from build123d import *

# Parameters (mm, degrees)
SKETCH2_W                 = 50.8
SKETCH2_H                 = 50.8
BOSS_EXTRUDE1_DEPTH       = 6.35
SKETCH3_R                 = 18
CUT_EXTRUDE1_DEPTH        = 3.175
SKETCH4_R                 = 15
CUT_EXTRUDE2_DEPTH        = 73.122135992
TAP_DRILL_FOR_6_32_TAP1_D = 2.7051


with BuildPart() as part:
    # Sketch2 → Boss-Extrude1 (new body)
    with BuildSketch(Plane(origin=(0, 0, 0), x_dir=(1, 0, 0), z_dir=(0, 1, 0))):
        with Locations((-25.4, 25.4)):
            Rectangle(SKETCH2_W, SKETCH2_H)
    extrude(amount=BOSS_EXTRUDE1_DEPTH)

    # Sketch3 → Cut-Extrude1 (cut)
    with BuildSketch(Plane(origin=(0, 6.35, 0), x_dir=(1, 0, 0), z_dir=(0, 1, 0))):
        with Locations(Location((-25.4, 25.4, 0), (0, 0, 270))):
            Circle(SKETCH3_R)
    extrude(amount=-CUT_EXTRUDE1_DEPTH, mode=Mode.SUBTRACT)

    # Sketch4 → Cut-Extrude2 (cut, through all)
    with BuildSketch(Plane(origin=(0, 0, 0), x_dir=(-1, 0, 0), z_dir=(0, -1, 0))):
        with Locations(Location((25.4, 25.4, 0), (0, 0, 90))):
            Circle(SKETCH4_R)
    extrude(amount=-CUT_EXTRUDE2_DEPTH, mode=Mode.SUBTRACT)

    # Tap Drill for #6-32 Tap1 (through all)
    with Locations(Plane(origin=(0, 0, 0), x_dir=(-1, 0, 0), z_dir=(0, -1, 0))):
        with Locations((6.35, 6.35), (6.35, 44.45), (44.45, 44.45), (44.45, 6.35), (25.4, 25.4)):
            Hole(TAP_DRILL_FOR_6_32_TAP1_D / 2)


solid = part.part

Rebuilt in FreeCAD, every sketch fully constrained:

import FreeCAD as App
import Part
import Sketcher
Q = App.Units.Quantity


def add_polygon(sketch, points):
    """Adds a closed chain of lines whose ends are joined by coincident constraints."""
    first, n = sketch.GeometryCount, len(points)
    for a, b in zip(points, points[1:] + points[:1]):
        sketch.addGeometry(Part.LineSegment(App.Vector(*a, 0), App.Vector(*b, 0)), False)
    for i in range(n):
        sketch.addConstraint(Sketcher.Constraint("Coincident", first + i, 2, first + (i + 1) % n, 1))

doc = App.newDocument("Part")
body = doc.addObject("PartDesign::Body", "Body")

# Sketch on XZ plane
sketch1 = doc.addObject("Sketcher::SketchObject", "Sketch")
body.addObject(sketch1)
sketch1.AttachmentSupport = (doc.XZ_Plane, [""])
sketch1.MapMode = "FlatFace"
add_polygon(sketch1, [(-51, -51), (-51, 0), (0, 0), (0, -51)])  # lines 0-3
sketch1.addConstraint([
    Sketcher.Constraint("Vertical", 0),
    Sketcher.Constraint("Horizontal", 1),
    Sketcher.Constraint("Vertical", 2),
    Sketcher.Constraint("Horizontal", 3),
    Sketcher.Constraint("Coincident", 1, 2, -1, 1),
    Sketcher.Constraint("Equal", 3, 0),
    Sketcher.Constraint("DistanceX", 1, 1, 1, 2, Q("2 in")),
])
pad1 = doc.addObject("PartDesign::Pad", "Pad")
body.addObject(pad1)
pad1.Profile = sketch1
pad1.Length = Q("0.25 in")
pad1.Reversed = True

# Sketch on XZ plane
sketch2 = doc.addObject("Sketcher::SketchObject", "Sketch001")
body.addObject(sketch2)
sketch2.AttachmentSupport = (doc.XZ_Plane, [""])
sketch2.MapMode = "FlatFace"
sketch2.AttachmentOffset = App.Placement(App.Vector(0, 0, -0.25 * 25.4), App.Rotation())
sketch2.addGeometry(Part.Circle(App.Vector(-25, -25, 0), App.Vector(0, 0, 1), 18), False)
sketch2.addConstraint([
    Sketcher.Constraint("DistanceX", 0, 3, -1, 1, Q("1 in")),
    Sketcher.Constraint("DistanceY", 0, 3, -1, 1, Q("1 in")),
    Sketcher.Constraint("Diameter", 0, 36.0),
])
pocket1 = doc.addObject("PartDesign::Pocket", "Pocket")
body.addObject(pocket1)
pocket1.Profile = sketch2
pocket1.Length = Q("0.125 in")
pocket1.Reversed = True

# Sketch on XZ plane
sketch3 = doc.addObject("Sketcher::SketchObject", "Sketch002")
body.addObject(sketch3)
sketch3.AttachmentSupport = (doc.XZ_Plane, [""])
sketch3.MapMode = "FlatFace"
sketch3.addGeometry(Part.Circle(App.Vector(-25, -25, 0), App.Vector(0, 0, 1), 15), False)
sketch3.addConstraint([
    Sketcher.Constraint("DistanceX", 0, 3, -1, 1, Q("1 in")),
    Sketcher.Constraint("DistanceY", 0, 3, -1, 1, Q("1 in")),
    Sketcher.Constraint("Diameter", 0, 30.0),
])
pocket2 = doc.addObject("PartDesign::Pocket", "Pocket001")
body.addObject(pocket2)
pocket2.Profile = sketch3
pocket2.Type = "ThroughAll"

# Sketch on XZ plane
sketch4 = doc.addObject("Sketcher::SketchObject", "Sketch003")
body.addObject(sketch4)
sketch4.AttachmentSupport = (doc.XZ_Plane, [""])
sketch4.MapMode = "FlatFace"
sketch4.addGeometry([
    Part.Circle(App.Vector(-6.3, -6.3, 0), App.Vector(0, 0, 1), 1.4),  # 0
    Part.Circle(App.Vector(-6.3, -44.5, 0), App.Vector(0, 0, 1), 1.4),  # 1
    Part.Circle(App.Vector(-44.5, -44.5, 0), App.Vector(0, 0, 1), 1.4),  # 2
    Part.Circle(App.Vector(-44.5, -6.3, 0), App.Vector(0, 0, 1), 1.4),  # 3
    Part.Circle(App.Vector(-25.4, -25.4, 0), App.Vector(0, 0, 1), 1.4),  # 4
], False)
sketch4.addConstraint([
    Sketcher.Constraint("Equal", 0, 1),
    Sketcher.Constraint("Equal", 1, 2),
    Sketcher.Constraint("Equal", 2, 3),
    Sketcher.Constraint("Equal", 3, 4),
    Sketcher.Constraint("Horizontal", 1, 3, 2, 3),
    Sketcher.Constraint("Horizontal", 0, 3, 3, 3),
    Sketcher.Constraint("Vertical", 0, 3, 1, 3),
    Sketcher.Constraint("Vertical", 2, 3, 3, 3),
    Sketcher.Constraint("DistanceX", 4, 3, -1, 1, Q("1 in")),
    Sketcher.Constraint("DistanceY", 4, 3, -1, 1, Q("1 in")),
    Sketcher.Constraint("Diameter", 0, Q("0.1065 in")),
    Sketcher.Constraint("DistanceY", 1, 3, 0, 3, Q("1.5 in")),
    Sketcher.Constraint("DistanceX", 2, 3, 1, 3, Q("1.5 in")),
    Sketcher.Constraint("DistanceX", 0, 3, -1, 1, Q("0.25 in")),
    Sketcher.Constraint("DistanceY", 0, 3, -1, 1, Q("0.25 in")),
])
doc.recompute()
hole = doc.addObject("PartDesign::Hole", "Hole")
body.addObject(hole)
hole.Profile = sketch4
hole.ThreadType = "None"
hole.Diameter = Q("0.1065 in")
hole.DepthType = "ThroughAll"

doc.recompute()
